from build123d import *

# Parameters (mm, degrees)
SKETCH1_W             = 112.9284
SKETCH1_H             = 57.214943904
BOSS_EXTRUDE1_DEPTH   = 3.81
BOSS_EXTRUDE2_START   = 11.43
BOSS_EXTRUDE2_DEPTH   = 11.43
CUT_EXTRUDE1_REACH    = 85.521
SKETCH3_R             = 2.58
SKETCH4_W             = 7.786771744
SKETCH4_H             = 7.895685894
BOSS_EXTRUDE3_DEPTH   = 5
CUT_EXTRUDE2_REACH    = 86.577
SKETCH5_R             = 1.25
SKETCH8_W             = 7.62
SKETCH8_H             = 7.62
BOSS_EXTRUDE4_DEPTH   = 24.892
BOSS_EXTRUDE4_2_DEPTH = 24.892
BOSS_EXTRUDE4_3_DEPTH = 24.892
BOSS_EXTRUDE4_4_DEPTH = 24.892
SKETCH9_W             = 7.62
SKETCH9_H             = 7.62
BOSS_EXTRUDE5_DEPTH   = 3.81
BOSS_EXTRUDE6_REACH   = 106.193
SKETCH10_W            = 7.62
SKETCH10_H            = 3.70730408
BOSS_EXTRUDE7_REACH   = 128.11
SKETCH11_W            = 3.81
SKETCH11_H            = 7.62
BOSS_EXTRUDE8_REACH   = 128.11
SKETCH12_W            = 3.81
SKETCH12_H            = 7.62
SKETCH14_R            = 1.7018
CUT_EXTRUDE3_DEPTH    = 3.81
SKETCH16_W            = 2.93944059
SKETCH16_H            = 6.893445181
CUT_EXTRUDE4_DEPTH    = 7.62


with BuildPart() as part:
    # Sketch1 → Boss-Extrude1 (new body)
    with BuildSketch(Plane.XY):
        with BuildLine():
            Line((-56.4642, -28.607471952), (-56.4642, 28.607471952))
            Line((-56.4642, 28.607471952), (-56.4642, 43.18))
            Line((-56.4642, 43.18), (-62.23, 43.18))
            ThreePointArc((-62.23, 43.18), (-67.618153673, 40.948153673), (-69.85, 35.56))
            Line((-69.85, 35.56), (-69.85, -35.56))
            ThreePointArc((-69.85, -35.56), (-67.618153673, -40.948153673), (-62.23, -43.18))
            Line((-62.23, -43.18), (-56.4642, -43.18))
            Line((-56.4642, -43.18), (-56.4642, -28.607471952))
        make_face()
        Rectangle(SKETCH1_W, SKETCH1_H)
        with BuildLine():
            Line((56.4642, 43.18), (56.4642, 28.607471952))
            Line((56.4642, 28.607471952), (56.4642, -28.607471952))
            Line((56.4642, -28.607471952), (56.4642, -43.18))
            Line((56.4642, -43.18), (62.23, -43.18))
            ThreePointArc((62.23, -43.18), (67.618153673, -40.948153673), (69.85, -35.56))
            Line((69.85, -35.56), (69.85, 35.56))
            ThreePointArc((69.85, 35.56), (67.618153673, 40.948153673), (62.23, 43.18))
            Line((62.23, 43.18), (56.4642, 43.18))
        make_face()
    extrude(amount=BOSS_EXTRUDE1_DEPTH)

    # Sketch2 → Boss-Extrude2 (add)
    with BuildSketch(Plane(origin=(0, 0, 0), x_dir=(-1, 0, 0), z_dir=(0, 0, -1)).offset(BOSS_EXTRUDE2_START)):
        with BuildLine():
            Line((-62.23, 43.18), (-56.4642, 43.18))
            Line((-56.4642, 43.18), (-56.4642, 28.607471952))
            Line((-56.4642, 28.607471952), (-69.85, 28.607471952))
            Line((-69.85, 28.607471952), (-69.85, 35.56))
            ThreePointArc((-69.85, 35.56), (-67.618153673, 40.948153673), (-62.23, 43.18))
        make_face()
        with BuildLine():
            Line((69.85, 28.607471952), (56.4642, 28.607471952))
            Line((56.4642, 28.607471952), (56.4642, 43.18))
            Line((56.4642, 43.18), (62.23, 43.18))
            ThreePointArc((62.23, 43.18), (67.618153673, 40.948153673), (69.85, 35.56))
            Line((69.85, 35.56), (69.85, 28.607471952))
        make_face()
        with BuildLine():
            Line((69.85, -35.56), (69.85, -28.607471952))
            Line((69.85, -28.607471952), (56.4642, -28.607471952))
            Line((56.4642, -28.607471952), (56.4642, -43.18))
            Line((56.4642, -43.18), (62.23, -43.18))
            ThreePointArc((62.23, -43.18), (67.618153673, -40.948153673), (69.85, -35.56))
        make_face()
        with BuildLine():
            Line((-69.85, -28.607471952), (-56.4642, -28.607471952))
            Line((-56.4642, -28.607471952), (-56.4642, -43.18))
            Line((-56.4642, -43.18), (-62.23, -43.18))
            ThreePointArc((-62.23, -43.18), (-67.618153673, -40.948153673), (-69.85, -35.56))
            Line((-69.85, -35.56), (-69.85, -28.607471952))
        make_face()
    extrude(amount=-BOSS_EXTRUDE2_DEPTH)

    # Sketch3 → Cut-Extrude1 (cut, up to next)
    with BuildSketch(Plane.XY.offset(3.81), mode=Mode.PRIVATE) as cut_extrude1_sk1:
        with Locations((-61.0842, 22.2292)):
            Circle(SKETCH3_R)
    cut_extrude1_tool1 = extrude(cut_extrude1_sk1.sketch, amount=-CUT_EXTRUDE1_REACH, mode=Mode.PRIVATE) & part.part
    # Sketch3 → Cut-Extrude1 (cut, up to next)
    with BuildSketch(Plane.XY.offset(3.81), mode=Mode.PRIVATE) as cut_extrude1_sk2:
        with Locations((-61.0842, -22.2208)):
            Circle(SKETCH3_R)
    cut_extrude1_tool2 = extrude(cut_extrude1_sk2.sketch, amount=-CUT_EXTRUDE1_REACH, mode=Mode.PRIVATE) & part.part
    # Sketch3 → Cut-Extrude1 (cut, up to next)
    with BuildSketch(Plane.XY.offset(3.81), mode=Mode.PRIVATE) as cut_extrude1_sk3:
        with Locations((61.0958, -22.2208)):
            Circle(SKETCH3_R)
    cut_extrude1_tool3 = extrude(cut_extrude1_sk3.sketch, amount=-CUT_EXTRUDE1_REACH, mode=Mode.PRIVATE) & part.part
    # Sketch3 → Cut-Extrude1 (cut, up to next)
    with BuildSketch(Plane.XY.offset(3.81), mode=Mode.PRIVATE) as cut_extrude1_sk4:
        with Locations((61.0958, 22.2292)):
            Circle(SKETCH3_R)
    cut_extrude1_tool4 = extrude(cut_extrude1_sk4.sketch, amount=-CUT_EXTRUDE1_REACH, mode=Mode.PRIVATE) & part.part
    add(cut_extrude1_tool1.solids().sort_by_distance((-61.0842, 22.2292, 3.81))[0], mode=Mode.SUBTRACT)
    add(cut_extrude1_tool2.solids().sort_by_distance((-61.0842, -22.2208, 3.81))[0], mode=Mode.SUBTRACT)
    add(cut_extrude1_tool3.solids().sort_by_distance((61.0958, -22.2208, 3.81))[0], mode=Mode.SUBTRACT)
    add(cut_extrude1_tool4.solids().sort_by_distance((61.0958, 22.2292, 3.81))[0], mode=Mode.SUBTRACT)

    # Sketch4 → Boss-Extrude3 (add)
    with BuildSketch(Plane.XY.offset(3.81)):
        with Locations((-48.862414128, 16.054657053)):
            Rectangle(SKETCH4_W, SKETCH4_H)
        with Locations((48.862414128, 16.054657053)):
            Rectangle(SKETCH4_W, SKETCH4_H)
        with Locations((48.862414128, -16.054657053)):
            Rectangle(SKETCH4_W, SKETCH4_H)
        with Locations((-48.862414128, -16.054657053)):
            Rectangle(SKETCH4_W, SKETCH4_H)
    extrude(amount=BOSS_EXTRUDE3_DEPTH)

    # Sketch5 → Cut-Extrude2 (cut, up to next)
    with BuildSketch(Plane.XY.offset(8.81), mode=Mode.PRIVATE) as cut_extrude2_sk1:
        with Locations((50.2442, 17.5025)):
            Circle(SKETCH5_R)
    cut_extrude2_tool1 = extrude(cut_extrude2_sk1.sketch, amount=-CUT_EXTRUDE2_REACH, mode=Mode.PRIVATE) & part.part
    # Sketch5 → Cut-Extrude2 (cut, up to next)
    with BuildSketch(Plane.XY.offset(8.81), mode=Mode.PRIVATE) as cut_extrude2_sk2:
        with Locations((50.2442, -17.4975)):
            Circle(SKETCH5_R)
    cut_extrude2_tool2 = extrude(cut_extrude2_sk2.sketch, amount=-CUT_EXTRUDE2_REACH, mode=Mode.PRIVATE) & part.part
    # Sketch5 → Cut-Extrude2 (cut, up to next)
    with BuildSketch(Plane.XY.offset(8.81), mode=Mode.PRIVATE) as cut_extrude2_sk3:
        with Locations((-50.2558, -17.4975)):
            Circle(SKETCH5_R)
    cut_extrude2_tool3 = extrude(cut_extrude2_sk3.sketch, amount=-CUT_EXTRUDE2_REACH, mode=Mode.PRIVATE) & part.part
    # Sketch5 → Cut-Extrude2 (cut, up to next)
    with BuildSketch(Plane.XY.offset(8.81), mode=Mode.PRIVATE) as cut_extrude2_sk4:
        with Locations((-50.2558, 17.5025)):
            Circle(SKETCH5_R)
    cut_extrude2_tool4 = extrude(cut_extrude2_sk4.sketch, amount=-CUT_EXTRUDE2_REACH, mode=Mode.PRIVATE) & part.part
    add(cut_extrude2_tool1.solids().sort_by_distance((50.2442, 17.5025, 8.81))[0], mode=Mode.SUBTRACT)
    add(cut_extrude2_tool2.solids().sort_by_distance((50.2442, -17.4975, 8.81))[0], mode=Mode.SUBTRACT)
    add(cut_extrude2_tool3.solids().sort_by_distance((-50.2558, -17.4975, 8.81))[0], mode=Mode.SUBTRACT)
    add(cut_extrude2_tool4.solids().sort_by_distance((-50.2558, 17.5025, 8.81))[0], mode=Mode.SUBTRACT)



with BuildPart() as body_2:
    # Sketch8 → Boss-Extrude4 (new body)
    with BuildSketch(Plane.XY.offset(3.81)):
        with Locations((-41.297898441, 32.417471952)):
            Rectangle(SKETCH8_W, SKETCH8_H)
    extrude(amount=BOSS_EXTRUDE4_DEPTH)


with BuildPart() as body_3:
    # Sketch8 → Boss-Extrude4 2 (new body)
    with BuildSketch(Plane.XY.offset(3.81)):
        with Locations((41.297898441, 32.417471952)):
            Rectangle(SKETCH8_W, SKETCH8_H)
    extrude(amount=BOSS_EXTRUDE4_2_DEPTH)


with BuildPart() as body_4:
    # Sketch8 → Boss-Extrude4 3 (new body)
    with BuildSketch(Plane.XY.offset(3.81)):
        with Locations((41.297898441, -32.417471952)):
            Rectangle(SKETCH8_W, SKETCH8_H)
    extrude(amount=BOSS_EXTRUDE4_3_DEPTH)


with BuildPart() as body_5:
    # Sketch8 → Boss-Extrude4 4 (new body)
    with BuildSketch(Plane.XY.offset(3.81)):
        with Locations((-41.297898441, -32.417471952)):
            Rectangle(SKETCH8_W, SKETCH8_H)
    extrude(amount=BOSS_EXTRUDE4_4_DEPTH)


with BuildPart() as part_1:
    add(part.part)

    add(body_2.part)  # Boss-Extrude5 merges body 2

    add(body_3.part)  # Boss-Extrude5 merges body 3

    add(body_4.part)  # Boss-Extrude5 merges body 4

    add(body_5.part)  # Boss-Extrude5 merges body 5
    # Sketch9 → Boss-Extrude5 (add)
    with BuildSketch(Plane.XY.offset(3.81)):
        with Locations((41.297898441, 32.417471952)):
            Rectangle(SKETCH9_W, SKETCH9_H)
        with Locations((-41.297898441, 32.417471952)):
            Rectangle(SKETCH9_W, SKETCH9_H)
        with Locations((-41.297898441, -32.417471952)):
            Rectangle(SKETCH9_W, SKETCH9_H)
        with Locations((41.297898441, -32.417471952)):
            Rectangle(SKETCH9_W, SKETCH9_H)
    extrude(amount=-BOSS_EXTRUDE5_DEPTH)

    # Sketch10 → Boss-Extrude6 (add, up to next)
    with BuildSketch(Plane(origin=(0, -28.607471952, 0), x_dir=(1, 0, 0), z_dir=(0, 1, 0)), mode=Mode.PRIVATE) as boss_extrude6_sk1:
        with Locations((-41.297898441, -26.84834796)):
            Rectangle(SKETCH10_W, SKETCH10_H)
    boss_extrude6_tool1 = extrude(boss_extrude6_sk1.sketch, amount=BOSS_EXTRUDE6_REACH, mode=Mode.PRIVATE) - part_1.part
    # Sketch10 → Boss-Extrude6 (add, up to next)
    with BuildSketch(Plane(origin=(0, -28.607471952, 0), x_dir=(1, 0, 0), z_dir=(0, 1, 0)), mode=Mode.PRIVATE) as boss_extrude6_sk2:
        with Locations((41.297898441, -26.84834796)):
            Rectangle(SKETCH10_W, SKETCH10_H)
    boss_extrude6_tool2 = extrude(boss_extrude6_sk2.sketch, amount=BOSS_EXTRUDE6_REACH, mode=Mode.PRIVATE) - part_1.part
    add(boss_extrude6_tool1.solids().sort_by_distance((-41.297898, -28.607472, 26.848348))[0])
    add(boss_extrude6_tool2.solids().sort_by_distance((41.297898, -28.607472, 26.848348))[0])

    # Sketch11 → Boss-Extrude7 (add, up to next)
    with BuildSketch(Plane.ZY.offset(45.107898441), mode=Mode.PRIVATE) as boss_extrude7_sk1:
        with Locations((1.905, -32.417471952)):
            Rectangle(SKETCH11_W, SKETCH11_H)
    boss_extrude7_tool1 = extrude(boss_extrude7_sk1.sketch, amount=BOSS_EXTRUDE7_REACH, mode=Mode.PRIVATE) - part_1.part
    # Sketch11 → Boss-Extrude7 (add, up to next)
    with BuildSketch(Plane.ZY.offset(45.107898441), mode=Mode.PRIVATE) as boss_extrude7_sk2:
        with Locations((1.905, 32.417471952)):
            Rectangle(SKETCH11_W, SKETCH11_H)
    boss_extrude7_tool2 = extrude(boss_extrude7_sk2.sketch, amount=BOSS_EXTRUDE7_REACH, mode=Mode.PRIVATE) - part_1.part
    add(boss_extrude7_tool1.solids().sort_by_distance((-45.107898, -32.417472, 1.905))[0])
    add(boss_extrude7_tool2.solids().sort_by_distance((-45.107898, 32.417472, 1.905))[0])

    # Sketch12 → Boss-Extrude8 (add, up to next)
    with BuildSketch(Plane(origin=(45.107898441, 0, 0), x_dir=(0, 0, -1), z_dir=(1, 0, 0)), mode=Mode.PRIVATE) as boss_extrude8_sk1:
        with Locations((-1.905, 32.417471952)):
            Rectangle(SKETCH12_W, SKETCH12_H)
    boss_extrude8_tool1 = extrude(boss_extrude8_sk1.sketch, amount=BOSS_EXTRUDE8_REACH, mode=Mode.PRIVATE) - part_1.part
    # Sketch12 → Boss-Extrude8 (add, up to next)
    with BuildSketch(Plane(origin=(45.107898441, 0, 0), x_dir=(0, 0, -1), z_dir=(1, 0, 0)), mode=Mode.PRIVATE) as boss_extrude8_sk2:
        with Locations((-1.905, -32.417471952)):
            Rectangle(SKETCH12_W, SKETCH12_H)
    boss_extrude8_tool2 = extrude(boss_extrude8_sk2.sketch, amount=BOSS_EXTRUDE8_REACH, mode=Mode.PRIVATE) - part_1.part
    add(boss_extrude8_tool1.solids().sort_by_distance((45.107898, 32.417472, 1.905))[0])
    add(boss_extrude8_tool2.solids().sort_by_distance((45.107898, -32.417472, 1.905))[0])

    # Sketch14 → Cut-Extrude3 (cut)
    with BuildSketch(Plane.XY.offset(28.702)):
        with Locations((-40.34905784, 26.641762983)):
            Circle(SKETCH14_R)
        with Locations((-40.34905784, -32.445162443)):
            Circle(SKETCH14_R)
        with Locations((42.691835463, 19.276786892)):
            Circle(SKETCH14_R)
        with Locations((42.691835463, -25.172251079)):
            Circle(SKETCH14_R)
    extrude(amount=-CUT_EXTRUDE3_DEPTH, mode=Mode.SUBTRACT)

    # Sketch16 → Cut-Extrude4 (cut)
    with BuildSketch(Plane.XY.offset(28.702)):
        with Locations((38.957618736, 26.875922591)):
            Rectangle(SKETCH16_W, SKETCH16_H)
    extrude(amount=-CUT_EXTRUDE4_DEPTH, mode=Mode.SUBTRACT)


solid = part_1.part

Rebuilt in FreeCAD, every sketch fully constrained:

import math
import FreeCAD as App
import Part
import Sketcher
Q = App.Units.Quantity


def add_polygon(sketch, points):
    """Adds a closed chain of lines whose ends are joined by coincident constraints."""
    first, n = sketch.GeometryCount, len(points)
    for a, b in zip(points, points[1:] + points[:1]):
        sketch.addGeometry(Part.LineSegment(App.Vector(*a, 0), App.Vector(*b, 0)), False)
    for i in range(n):
        sketch.addConstraint(Sketcher.Constraint("Coincident", first + i, 2, first + (i + 1) % n, 1))

doc = App.newDocument("Part")
params = doc.addObject("Spreadsheet::Sheet", "Params")
for row, (alias, value) in enumerate([
    ("sketch1_radius", "0.3 in"),
    ("sketch1_height", "2.8 in"),
    ("sketch1_width", "0.227 in"),
    ("pad1_length", "0.15 in"),
    ("sketch2_radius", "0.3 in"),
    ("sketch2_width", "0.227 in"),
    ("pad2_length", "0.45 in"),
    ("pad3_length", "5 mm"),
    ("sketch12_width", "0.3 in"),
    ("pad4_length", "0.98 in"),
    ("sketch13_width", "0.3 in"),
    ("pad5_length", "0.98 in"),
    ("sketch14_width", "0.3 in"),
    ("pad6_length", "0.98 in"),
    ("sketch15_width", "0.3 in"),
    ("pad7_length", "0.98 in"),
    ("sketch16_width", "0.3 in"),
    ("pad8_length", "0.15 in"),
    ("sketch17_width", "0.3 in"),
    ("sketch18_width", "0.3 in"),
    ("sketch19_width", "0.3 in"),
    ("sketch19_height", "0.15 in"),
    ("sketch20_width", "0.3 in"),
    ("sketch20_height", "0.15 in"),
    ("sketch21_width", "0.3 in"),
    ("sketch21_height", "0.15 in"),
    ("sketch22_width", "0.3 in"),
    ("sketch22_height", "0.15 in"),
    ("sketch23_diameter", "0.134 in"),
    ("pocket9_length", "0.15 in"),
    ("pocket10_length", "0.3 in"),
], start=1):
    params.set(f"A{row}", alias)
    params.set(f"B{row}", "=" + value)
    params.setAlias(f"B{row}", alias)

body = doc.addObject("PartDesign::Body", "Body")

sketch1 = body.newObject("Sketcher::SketchObject", "Sketch")
sketch1.AttachmentSupport = (doc.getObject("XY_Plane"), [""])
sketch1.MapMode = "FlatFace"
sketch1.addGeometry([
    Part.LineSegment(App.Vector(-56, 43, 0), App.Vector(-62, 43, 0)),
    Part.ArcOfCircle(Part.Circle(App.Vector(-62, 36, 0), App.Vector(0, 0, 1), 8), math.radians(90), math.radians(180)),
    Part.LineSegment(App.Vector(-70, 36, 0), App.Vector(-70, -36, 0)),
    Part.ArcOfCircle(Part.Circle(App.Vector(-62, -36, 0), App.Vector(0, 0, 1), 8), math.radians(180), math.radians(270)),
    Part.LineSegment(App.Vector(-62, -43, 0), App.Vector(-56, -43, 0)),
    Part.LineSegment(App.Vector(-56, -43, 0), App.Vector(-56, -29, 0)),
    Part.LineSegment(App.Vector(-56, -29, 0), App.Vector(56, -29, 0)),
    Part.LineSegment(App.Vector(56, -29, 0), App.Vector(56, -43, 0)),
    Part.LineSegment(App.Vector(56, -43, 0), App.Vector(62, -43, 0)),
    Part.ArcOfCircle(Part.Circle(App.Vector(62, -36, 0), App.Vector(0, 0, 1), 8), math.radians(-90), math.radians(0)),
    Part.LineSegment(App.Vector(70, -36, 0), App.Vector(70, 36, 0)),
    Part.ArcOfCircle(Part.Circle(App.Vector(62, 36, 0), App.Vector(0, 0, 1), 8), math.radians(0), math.radians(90)),
    Part.LineSegment(App.Vector(62, 43, 0), App.Vector(56, 43, 0)),
    Part.LineSegment(App.Vector(56, 43, 0), App.Vector(56, 29, 0)),
    Part.LineSegment(App.Vector(56, 29, 0), App.Vector(-56, 29, 0)),
    Part.LineSegment(App.Vector(-56, 29, 0), App.Vector(-56, 43, 0)),
], False)
sketch1.addConstraint([
    Sketcher.Constraint("Tangent", 0, 2, 1, 1),
    Sketcher.Constraint("Tangent", 1, 2, 2, 1),
    Sketcher.Constraint("Tangent", 2, 2, 3, 1),
    Sketcher.Constraint("Tangent", 3, 2, 4, 1),
    Sketcher.Constraint("Coincident", 4, 2, 5, 1),
    Sketcher.Constraint("Coincident", 5, 2, 6, 1),
    Sketcher.Constraint("Coincident", 6, 2, 7, 1),
    Sketcher.Constraint("Coincident", 7, 2, 8, 1),
    Sketcher.Constraint("Tangent", 8, 2, 9, 1),
    Sketcher.Constraint("Tangent", 9, 2, 10, 1),
    Sketcher.Constraint("Tangent", 10, 2, 11, 1),
    Sketcher.Constraint("Tangent", 11, 2, 12, 1),
    Sketcher.Constraint("Coincident", 12, 2, 13, 1),
    Sketcher.Constraint("Coincident", 13, 2, 14, 1),
    Sketcher.Constraint("Coincident", 14, 2, 15, 1),
    Sketcher.Constraint("Coincident", 15, 2, 0, 1),
    Sketcher.Constraint("Horizontal", 0),
    Sketcher.Constraint("Vertical", 2),
    Sketcher.Constraint("Horizontal", 4),
    Sketcher.Constraint("Vertical", 5),
    Sketcher.Constraint("Horizontal", 6),
    Sketcher.Constraint("Vertical", 7),
    Sketcher.Constraint("Horizontal", 8),
    Sketcher.Constraint("Vertical", 10),
    Sketcher.Constraint("Horizontal", 12),
    Sketcher.Constraint("Vertical", 13),
    Sketcher.Constraint("Horizontal", 14),
    Sketcher.Constraint("Vertical", 15),
    Sketcher.Constraint("Equal", 1, 3),
    Sketcher.Constraint("Equal", 3, 9),
    Sketcher.Constraint("Equal", 9, 11),
    Sketcher.Constraint("Symmetric", 1, 3, 9, 3, -1, 1),
    Sketcher.Constraint("Symmetric", 4, 2, 12, 2, -1, 1),
    Sketcher.Constraint("Symmetric", 6, 2, 14, 2, -1, 1),
    Sketcher.Constraint("Symmetric", 4, 2, 7, 2, -2),
    Sketcher.Constraint("Radius", 1, Q("0.3 in")),
    Sketcher.Constraint("DistanceY", 2, 2, 2, 1, Q("2.8 in")),
    Sketcher.Constraint("DistanceX", 3, 3, 9, 3, Q("4.9 in")),
    Sketcher.Constraint("DistanceX", 0, 2, 0, 1, Q("0.227 in")),
    Sketcher.Constraint("DistanceY", 5, 1, 5, 2, Q("14.572528 mm")),
])
sketch1.setExpression("Constraints[35]", "Params.sketch1_radius")
sketch1.setExpression("Constraints[36]", "Params.sketch1_height")
sketch1.setExpression("Constraints[38]", "Params.sketch1_width")
pad1 = body.newObject("PartDesign::Pad", "Pad")
pad1.Profile = sketch1
pad1.setExpression("Length", "Params.pad1_length")

sketch2 = body.newObject("Sketcher::SketchObject", "Sketch001")
sketch2.AttachmentSupport = (doc.getObject("XY_Plane"), [""])
sketch2.MapMode = "FlatFace"
sketch2.AttachmentOffset = App.Placement(App.Vector(0, 0, -0.45 * 25.4), App.Rotation())
sketch2.addGeometry([
    Part.LineSegment(App.Vector(56, 43, 0), App.Vector(62, 43, 0)),
    Part.ArcOfCircle(Part.Circle(App.Vector(62, 36, 0), App.Vector(0, 0, 1), 8), math.radians(0), math.radians(90)),
    Part.LineSegment(App.Vector(70, 36, 0), App.Vector(70, 29, 0)),
    Part.LineSegment(App.Vector(70, 29, 0), App.Vector(56, 29, 0)),
    Part.LineSegment(App.Vector(56, 29, 0), App.Vector(56, 43, 0)),
    Part.LineSegment(App.Vector(-56, 29, 0), App.Vector(-70, 29, 0)),
    Part.LineSegment(App.Vector(-70, 29, 0), App.Vector(-70, 36, 0)),
    Part.ArcOfCircle(Part.Circle(App.Vector(-62, 36, 0), App.Vector(0, 0, 1), 8), math.radians(90), math.radians(180)),
    Part.LineSegment(App.Vector(-62, 43, 0), App.Vector(-56, 43, 0)),
    Part.LineSegment(App.Vector(-56, 43, 0), App.Vector(-56, 29, 0)),
    Part.LineSegment(App.Vector(-70, -36, 0), App.Vector(-70, -29, 0)),
    Part.LineSegment(App.Vector(-70, -29, 0), App.Vector(-56, -29, 0)),
    Part.LineSegment(App.Vector(-56, -29, 0), App.Vector(-56, -43, 0)),
    Part.LineSegment(App.Vector(-56, -43, 0), App.Vector(-62, -43, 0)),
    Part.ArcOfCircle(Part.Circle(App.Vector(-62, -36, 0), App.Vector(0, 0, 1), 8), math.radians(180), math.radians(270)),
    Part.LineSegment(App.Vector(56, -29, 0), App.Vector(70, -29, 0)),
    Part.LineSegment(App.Vector(70, -29, 0), App.Vector(70, -36, 0)),
    Part.ArcOfCircle(Part.Circle(App.Vector(62, -36, 0), App.Vector(0, 0, 1), 8), math.radians(-90), math.radians(0)),
    Part.LineSegment(App.Vector(62, -43, 0), App.Vector(56, -43, 0)),
    Part.LineSegment(App.Vector(56, -43, 0), App.Vector(56, -29, 0)),
], False)
sketch2.addConstraint([
    Sketcher.Constraint("Tangent", 0, 2, 1, 2),
    Sketcher.Constraint("Tangent", 1, 1, 2, 1),
    Sketcher.Constraint("Coincident", 2, 2, 3, 1),
    Sketcher.Constraint("Coincident", 3, 2, 4, 1),
    Sketcher.Constraint("Coincident", 4, 2, 0, 1),
    Sketcher.Constraint("Coincident", 5, 2, 6, 1),
    Sketcher.Constraint("Tangent", 6, 2, 7, 2),
    Sketcher.Constraint("Tangent", 7, 1, 8, 1),
    Sketcher.Constraint("Coincident", 8, 2, 9, 1),
    Sketcher.Constraint("Coincident", 9, 2, 5, 1),
    Sketcher.Constraint("Coincident", 10, 2, 11, 1),
    Sketcher.Constraint("Coincident", 11, 2, 12, 1),
    Sketcher.Constraint("Coincident", 12, 2, 13, 1),
    Sketcher.Constraint("Tangent", 13, 2, 14, 2),
    Sketcher.Constraint("Tangent", 14, 1, 10, 1),
    Sketcher.Constraint("Coincident", 15, 2, 16, 1),
    Sketcher.Constraint("Tangent", 16, 2, 17, 2),
    Sketcher.Constraint("Tangent", 17, 1, 18, 1),
    Sketcher.Constraint("Coincident", 18, 2, 19, 1),
    Sketcher.Constraint("Coincident", 19, 2, 15, 1),
    Sketcher.Constraint("Horizontal", 0),
    Sketcher.Constraint("Vertical", 2),
    Sketcher.Constraint("Horizontal", 3),
    Sketcher.Constraint("Vertical", 4),
    Sketcher.Constraint("Horizontal", 5),
    Sketcher.Constraint("Vertical", 6),
    Sketcher.Constraint("Horizontal", 8),
    Sketcher.Constraint("Vertical", 9),
    Sketcher.Constraint("Vertical", 10),
    Sketcher.Constraint("Horizontal", 11),
    Sketcher.Constraint("Vertical", 12),
    Sketcher.Constraint("Horizontal", 13),
    Sketcher.Constraint("Horizontal", 15),
    Sketcher.Constraint("Vertical", 16),
    Sketcher.Constraint("Horizontal", 18),
    Sketcher.Constraint("Vertical", 19),
    Sketcher.Constraint("Equal", 1, 7),
    Sketcher.Constraint("Equal", 7, 14),
    Sketcher.Constraint("Equal", 14, 17),
    Sketcher.Constraint("Symmetric", 1, 3, 14, 3, -1, 1),
    Sketcher.Constraint("Symmetric", 7, 3, 17, 3, -1, 1),
    Sketcher.Constraint("Symmetric", 3, 2, 11, 2, -1, 1),
    Sketcher.Constraint("Symmetric", 9, 2, 19, 2, -1, 1),
    Sketcher.Constraint("Symmetric", 1, 3, 7, 3, -2),
    Sketcher.Constraint("Symmetric", 3, 2, 9, 2, -2),
    Sketcher.Constraint("Radius", 1, Q("0.3 in")),
    Sketcher.Constraint("DistanceY", -1, 1, 1, 3, Q("1.4 in")),
    Sketcher.Constraint("DistanceX", 7, 3, 1, 3, Q("4.9 in")),
    Sketcher.Constraint("DistanceX", 0, 1, 0, 2, Q("0.227 in")),
    Sketcher.Constraint("DistanceY", 2, 2, 2, 1, Q("6.952528 mm")),
])
sketch2.setExpression("Constraints[45]", "Params.sketch2_radius")
sketch2.setExpression("Constraints[48]", "Params.sketch2_width")
pad2 = body.newObject("PartDesign::Pad", "Pad001")
pad2.Profile = sketch2
pad2.setExpression("Length", "Params.pad2_length")

sketch3 = body.newObject("Sketcher::SketchObject", "Sketch002")
sketch3.AttachmentSupport = (doc.getObject("XY_Plane"), [""])
sketch3.MapMode = "FlatFace"
sketch3.AttachmentOffset = App.Placement(App.Vector(0, 0, 0.15 * 25.4), App.Rotation())
sketch3.addGeometry(Part.Circle(App.Vector(-61.1, 22.2, 0), App.Vector(0, 0, 1), 2.6), False)
sketch3.addConstraint([
    Sketcher.Constraint("Diameter", 0, Q("5.16 mm")),
    Sketcher.Constraint("DistanceX", 0, 3, -1, 1, Q("61.0842 mm")),
    Sketcher.Constraint("DistanceY", -1, 1, 0, 3, Q("22.2292 mm")),
])
pocket1 = body.newObject("PartDesign::Pocket", "Pocket")
pocket1.Profile = sketch3
pocket1.Type = "UpToFirst"

sketch4 = body.newObject("Sketcher::SketchObject", "Sketch003")
sketch4.AttachmentSupport = (doc.getObject("XY_Plane"), [""])
sketch4.MapMode = "FlatFace"
sketch4.AttachmentOffset = App.Placement(App.Vector(0, 0, 0.15 * 25.4), App.Rotation())
sketch4.addGeometry(Part.Circle(App.Vector(-61.1, -22.2, 0), App.Vector(0, 0, 1), 2.6), False)
sketch4.addConstraint([
    Sketcher.Constraint("Diameter", 0, Q("5.16 mm")),
    Sketcher.Constraint("DistanceX", 0, 3, -1, 1, Q("61.0842 mm")),
    Sketcher.Constraint("DistanceY", 0, 3, -1, 1, Q("22.2208 mm")),
])
pocket2 = body.newObject("PartDesign::Pocket", "Pocket001")
pocket2.Profile = sketch4
pocket2.Type = "UpToFirst"

sketch5 = body.newObject("Sketcher::SketchObject", "Sketch004")
sketch5.AttachmentSupport = (doc.getObject("XY_Plane"), [""])
sketch5.MapMode = "FlatFace"
sketch5.AttachmentOffset = App.Placement(App.Vector(0, 0, 0.15 * 25.4), App.Rotation())
sketch5.addGeometry(Part.Circle(App.Vector(61.1, -22.2, 0), App.Vector(0, 0, 1), 2.6), False)
sketch5.addConstraint([
    Sketcher.Constraint("Diameter", 0, Q("5.16 mm")),
    Sketcher.Constraint("DistanceX", -1, 1, 0, 3, Q("61.0958 mm")),
    Sketcher.Constraint("DistanceY", 0, 3, -1, 1, Q("22.2208 mm")),
])
pocket3 = body.newObject("PartDesign::Pocket", "Pocket002")
pocket3.Profile = sketch5
pocket3.Type = "UpToFirst"

sketch6 = body.newObject("Sketcher::SketchObject", "Sketch005")
sketch6.AttachmentSupport = (doc.getObject("XY_Plane"), [""])
sketch6.MapMode = "FlatFace"
sketch6.AttachmentOffset = App.Placement(App.Vector(0, 0, 0.15 * 25.4), App.Rotation())
sketch6.addGeometry(Part.Circle(App.Vector(61.1, 22.2, 0), App.Vector(0, 0, 1), 2.6), False)
sketch6.addConstraint([
    Sketcher.Constraint("Diameter", 0, Q("5.16 mm")),
    Sketcher.Constraint("DistanceX", -1, 1, 0, 3, Q("61.0958 mm")),
    Sketcher.Constraint("DistanceY", -1, 1, 0, 3, Q("22.2292 mm")),
])
pocket4 = body.newObject("PartDesign::Pocket", "Pocket003")
pocket4.Profile = sketch6
pocket4.Type = "UpToFirst"

sketch7 = body.newObject("Sketcher::SketchObject", "Sketch006")
sketch7.AttachmentSupport = (doc.getObject("XY_Plane"), [""])
sketch7.MapMode = "FlatFace"
sketch7.AttachmentOffset = App.Placement(App.Vector(0, 0, 0.15 * 25.4), App.Rotation())
add_polygon(sketch7, [(-53, 20), (-53, 12), (-45, 12), (-45, 20)])
add_polygon(sketch7, [(45, 20), (45, 12), (53, 12), (53, 20)])
add_polygon(sketch7, [(45, -12), (45, -20), (53, -20), (53, -12)])
add_polygon(sketch7, [(-53, -12), (-53, -20), (-45, -20), (-45, -12)])
sketch7.addConstraint([
    Sketcher.Constraint("Vertical", 0),
    Sketcher.Constraint("Horizontal", 1),
    Sketcher.Constraint("Vertical", 2),
    Sketcher.Constraint("Horizontal", 3),
    Sketcher.Constraint("Vertical", 4),
    Sketcher.Constraint("Horizontal", 5),
    Sketcher.Constraint("Vertical", 6),
    Sketcher.Constraint("Horizontal", 7),
    Sketcher.Constraint("Vertical", 8),
    Sketcher.Constraint("Horizontal", 9),
    Sketcher.Constraint("Vertical", 10),
    Sketcher.Constraint("Horizontal", 11),
    Sketcher.Constraint("Vertical", 12),
    Sketcher.Constraint("Horizontal", 13),
    Sketcher.Constraint("Vertical", 14),
    Sketcher.Constraint("Horizontal", 15),
    Sketcher.Constraint("Symmetric", 2, 2, 8, 2, -1, 1),
    Sketcher.Constraint("Symmetric", 0, 2, 10, 2, -1, 1),
    Sketcher.Constraint("Symmetric", 6, 2, 12, 2, -1, 1),
    Sketcher.Constraint("Symmetric", 4, 2, 14, 2, -1, 1),
    Sketcher.Constraint("Symmetric", 1, 2, 4, 2, -2),
    Sketcher.Constraint("Symmetric", 3, 2, 6, 2, -2),
    Sketcher.Constraint("DistanceX", 0, 2, -1, 1, Q("2.077 in")),
    Sketcher.Constraint("DistanceY", 8, 2, 7, 2, Q("1.575 in")),
    Sketcher.Constraint("DistanceX", 1, 1, 1, 2, Q("7.786772 mm")),
    Sketcher.Constraint("DistanceY", 0, 2, 0, 1, Q("7.895686 mm")),
])
pad3 = body.newObject("PartDesign::Pad", "Pad002")
pad3.Profile = sketch7
pad3.setExpression("Length", "Params.pad3_length")

sketch8 = body.newObject("Sketcher::SketchObject", "Sketch007")
sketch8.AttachmentSupport = (doc.getObject("XY_Plane"), [""])
sketch8.MapMode = "FlatFace"
sketch8.AttachmentOffset = App.Placement(App.Vector(0, 0, 8.81), App.Rotation())
sketch8.addGeometry(Part.Circle(App.Vector(50.2, 17.5, 0), App.Vector(0, 0, 1), 1.2), False)
sketch8.addConstraint([
    Sketcher.Constraint("Diameter", 0, Q("2.5 mm")),
    Sketcher.Constraint("DistanceX", -1, 1, 0, 3, Q("50.2442 mm")),
    Sketcher.Constraint("DistanceY", -1, 1, 0, 3, Q("17.5025 mm")),
])
pocket5 = body.newObject("PartDesign::Pocket", "Pocket004")
pocket5.Profile = sketch8
pocket5.Type = "UpToFirst"

sketch9 = body.newObject("Sketcher::SketchObject", "Sketch008")
sketch9.AttachmentSupport = (doc.getObject("XY_Plane"), [""])
sketch9.MapMode = "FlatFace"
sketch9.AttachmentOffset = App.Placement(App.Vector(0, 0, 8.81), App.Rotation())
sketch9.addGeometry(Part.Circle(App.Vector(50.2, -17.5, 0), App.Vector(0, 0, 1), 1.2), False)
sketch9.addConstraint([
    Sketcher.Constraint("Diameter", 0, Q("2.5 mm")),
    Sketcher.Constraint("DistanceX", -1, 1, 0, 3, Q("50.2442 mm")),
    Sketcher.Constraint("DistanceY", 0, 3, -1, 1, Q("17.4975 mm")),
])
pocket6 = body.newObject("PartDesign::Pocket", "Pocket005")
pocket6.Profile = sketch9
pocket6.Type = "UpToFirst"

sketch10 = body.newObject("Sketcher::SketchObject", "Sketch009")
sketch10.AttachmentSupport = (doc.getObject("XY_Plane"), [""])
sketch10.MapMode = "FlatFace"
sketch10.AttachmentOffset = App.Placement(App.Vector(0, 0, 8.81), App.Rotation())
sketch10.addGeometry(Part.Circle(App.Vector(-50.3, -17.5, 0), App.Vector(0, 0, 1), 1.2), False)
sketch10.addConstraint([
    Sketcher.Constraint("Diameter", 0, Q("2.5 mm")),
    Sketcher.Constraint("DistanceX", 0, 3, -1, 1, Q("50.2558 mm")),
    Sketcher.Constraint("DistanceY", 0, 3, -1, 1, Q("17.4975 mm")),
])
pocket7 = body.newObject("PartDesign::Pocket", "Pocket006")
pocket7.Profile = sketch10
pocket7.Type = "UpToFirst"

sketch11 = body.newObject("Sketcher::SketchObject", "Sketch010")
sketch11.AttachmentSupport = (doc.getObject("XY_Plane"), [""])
sketch11.MapMode = "FlatFace"
sketch11.AttachmentOffset = App.Placement(App.Vector(0, 0, 8.81), App.Rotation())
sketch11.addGeometry(Part.Circle(App.Vector(-50.3, 17.5, 0), App.Vector(0, 0, 1), 1.2), False)
sketch11.addConstraint([
    Sketcher.Constraint("Diameter", 0, Q("2.5 mm")),
    Sketcher.Constraint("DistanceX", 0, 3, -1, 1, Q("50.2558 mm")),
    Sketcher.Constraint("DistanceY", -1, 1, 0, 3, Q("17.5025 mm")),
])
pocket8 = body.newObject("PartDesign::Pocket", "Pocket007")
pocket8.Profile = sketch11
pocket8.Type = "UpToFirst"
body2 = doc.addObject("PartDesign::Body", "Body001")

sketch12 = body2.newObject("Sketcher::SketchObject", "Sketch011")
sketch12.AttachmentSupport = (doc.getObject("XY_Plane001"), [""])
sketch12.MapMode = "FlatFace"
sketch12.AttachmentOffset = App.Placement(App.Vector(0, 0, 0.15 * 25.4), App.Rotation())
add_polygon(sketch12, [(-45, 36), (-45, 29), (-37, 29), (-37, 36)])
sketch12.addConstraint([
    Sketcher.Constraint("Vertical", 0),
    Sketcher.Constraint("Horizontal", 1),
    Sketcher.Constraint("Vertical", 2),
    Sketcher.Constraint("Horizontal", 3),
    Sketcher.Constraint("Equal", 3, 0),
    Sketcher.Constraint("DistanceX", 1, 1, 1, 2, Q("0.3 in")),
    Sketcher.Constraint("DistanceX", 0, 2, -1, 1, Q("45.107898 mm")),
    Sketcher.Constraint("DistanceY", -1, 1, 0, 2, Q("28.607472 mm")),
])
sketch12.setExpression("Constraints[9]", "Params.sketch12_width")
pad4 = body2.newObject("PartDesign::Pad", "Pad003")
pad4.Profile = sketch12
pad4.setExpression("Length", "Params.pad4_length")
body3 = doc.addObject("PartDesign::Body", "Body002")

sketch13 = body3.newObject("Sketcher::SketchObject", "Sketch012")
sketch13.AttachmentSupport = (doc.getObject("XY_Plane002"), [""])
sketch13.MapMode = "FlatFace"
sketch13.AttachmentOffset = App.Placement(App.Vector(0, 0, 0.15 * 25.4), App.Rotation())
add_polygon(sketch13, [(37, 36), (37, 29), (45, 29), (45, 36)])
sketch13.addConstraint([
    Sketcher.Constraint("Vertical", 0),
    Sketcher.Constraint("Horizontal", 1),
    Sketcher.Constraint("Vertical", 2),
    Sketcher.Constraint("Horizontal", 3),
    Sketcher.Constraint("Equal", 3, 0),
    Sketcher.Constraint("DistanceX", 1, 1, 1, 2, Q("0.3 in")),
    Sketcher.Constraint("DistanceX", -1, 1, 0, 2, Q("37.487898 mm")),
    Sketcher.Constraint("DistanceY", -1, 1, 0, 2, Q("28.607472 mm")),
])
sketch13.setExpression("Constraints[9]", "Params.sketch13_width")
pad5 = body3.newObject("PartDesign::Pad", "Pad004")
pad5.Profile = sketch13
pad5.setExpression("Length", "Params.pad5_length")
body4 = doc.addObject("PartDesign::Body", "Body003")

sketch14 = body4.newObject("Sketcher::SketchObject", "Sketch013")
sketch14.AttachmentSupport = (doc.getObject("XY_Plane003"), [""])
sketch14.MapMode = "FlatFace"
sketch14.AttachmentOffset = App.Placement(App.Vector(0, 0, 0.15 * 25.4), App.Rotation())
add_polygon(sketch14, [(37, -29), (37, -36), (45, -36), (45, -29)])
sketch14.addConstraint([
    Sketcher.Constraint("Vertical", 0),
    Sketcher.Constraint("Horizontal", 1),
    Sketcher.Constraint("Vertical", 2),
    Sketcher.Constraint("Horizontal", 3),
    Sketcher.Constraint("Equal", 3, 0),
    Sketcher.Constraint("DistanceX", 1, 1, 1, 2, Q("0.3 in")),
    Sketcher.Constraint("DistanceX", -1, 1, 0, 2, Q("37.487898 mm")),
    Sketcher.Constraint("DistanceY", 0, 2, -1, 1, Q("36.227472 mm")),
])
sketch14.setExpression("Constraints[9]", "Params.sketch14_width")
pad6 = body4.newObject("PartDesign::Pad", "Pad005")
pad6.Profile = sketch14
pad6.setExpression("Length", "Params.pad6_length")
body5 = doc.addObject("PartDesign::Body", "Body004")

sketch15 = body5.newObject("Sketcher::SketchObject", "Sketch014")
sketch15.AttachmentSupport = (doc.getObject("XY_Plane004"), [""])
sketch15.MapMode = "FlatFace"
sketch15.AttachmentOffset = App.Placement(App.Vector(0, 0, 0.15 * 25.4), App.Rotation())
add_polygon(sketch15, [(-45, -29), (-45, -36), (-37, -36), (-37, -29)])
sketch15.addConstraint([
    Sketcher.Constraint("Vertical", 0),
    Sketcher.Constraint("Horizontal", 1),
    Sketcher.Constraint("Vertical", 2),
    Sketcher.Constraint("Horizontal", 3),
    Sketcher.Constraint("Equal", 3, 0),
    Sketcher.Constraint("DistanceX", 1, 1, 1, 2, Q("0.3 in")),
    Sketcher.Constraint("DistanceX", 0, 2, -1, 1, Q("45.107898 mm")),
    Sketcher.Constraint("DistanceY", 0, 2, -1, 1, Q("36.227472 mm")),
])
sketch15.setExpression("Constraints[9]", "Params.sketch15_width")
pad7 = body5.newObject("PartDesign::Pad", "Pad006")
pad7.Profile = sketch15
pad7.setExpression("Length", "Params.pad7_length")
body.AllowCompound = True
doc.recompute()

boolean = body.newObject("PartDesign::Boolean", "Boolean")
boolean.Type = "Fuse"
boolean.addObjects([body2])
doc.recompute()

boolean2 = body.newObject("PartDesign::Boolean", "Boolean001")
boolean2.Type = "Fuse"
boolean2.addObjects([body3])
doc.recompute()

boolean3 = body.newObject("PartDesign::Boolean", "Boolean002")
boolean3.Type = "Fuse"
boolean3.addObjects([body4])
doc.recompute()

boolean4 = body.newObject("PartDesign::Boolean", "Boolean003")
boolean4.Type = "Fuse"
boolean4.addObjects([body5])

sketch16 = body.newObject("Sketcher::SketchObject", "Sketch015")
sketch16.AttachmentSupport = (doc.getObject("XY_Plane"), [""])
sketch16.MapMode = "FlatFace"
sketch16.AttachmentOffset = App.Placement(App.Vector(0, 0, 0.15 * 25.4), App.Rotation())
add_polygon(sketch16, [(37, 36), (37, 29), (45, 29), (45, 36)])
add_polygon(sketch16, [(-45, 36), (-45, 29), (-37, 29), (-37, 36)])
add_polygon(sketch16, [(-45, -29), (-45, -36), (-37, -36), (-37, -29)])
add_polygon(sketch16, [(37, -29), (37, -36), (45, -36), (45, -29)])
sketch16.addConstraint([
    Sketcher.Constraint("Vertical", 0),
    Sketcher.Constraint("Horizontal", 1),
    Sketcher.Constraint("Vertical", 2),
    Sketcher.Constraint("Horizontal", 3),
    Sketcher.Constraint("Vertical", 4),
    Sketcher.Constraint("Horizontal", 5),
    Sketcher.Constraint("Vertical", 6),
    Sketcher.Constraint("Horizontal", 7),
    Sketcher.Constraint("Vertical", 8),
    Sketcher.Constraint("Horizontal", 9),
    Sketcher.Constraint("Vertical", 10),
    Sketcher.Constraint("Horizontal", 11),
    Sketcher.Constraint("Vertical", 12),
    Sketcher.Constraint("Horizontal", 13),
    Sketcher.Constraint("Vertical", 14),
    Sketcher.Constraint("Horizontal", 15),
    Sketcher.Constraint("Symmetric", 2, 2, 8, 2, -1, 1),
    Sketcher.Constraint("Symmetric", 0, 2, 10, 2, -1, 1),
    Sketcher.Constraint("Symmetric", 6, 2, 12, 2, -1, 1),
    Sketcher.Constraint("Symmetric", 4, 2, 14, 2, -1, 1),
    Sketcher.Constraint("Symmetric", 1, 2, 4, 2, -2),
    Sketcher.Constraint("Symmetric", 3, 2, 6, 2, -2),
    Sketcher.Constraint("Equal", 15, 0),
    Sketcher.Constraint("DistanceX", 1, 1, 1, 2, Q("0.3 in")),
    Sketcher.Constraint("DistanceX", -1, 1, 0, 2, Q("37.487898 mm")),
    Sketcher.Constraint("DistanceY", -1, 1, 0, 2, Q("28.607472 mm")),
])
sketch16.setExpression("Constraints[39]", "Params.sketch16_width")
pad8 = body.newObject("PartDesign::Pad", "Pad007")
pad8.Profile = sketch16
pad8.setExpression("Length", "Params.pad8_length")
pad8.Reversed = True

sketch17 = body.newObject("Sketcher::SketchObject", "Sketch016")
sketch17.AttachmentSupport = (doc.getObject("XZ_Plane"), [""])
sketch17.MapMode = "FlatFace"
sketch17.AttachmentOffset = App.Placement(App.Vector(0, 0, 28.607472), App.Rotation())
add_polygon(sketch17, [(-45.1, 25), (-45.1, 28.7), (-37.5, 28.7), (-37.5, 25)])
sketch17.addConstraint([
    Sketcher.Constraint("Vertical", 0),
    Sketcher.Constraint("Horizontal", 1),
    Sketcher.Constraint("Vertical", 2),
    Sketcher.Constraint("Horizontal", 3),
    Sketcher.Constraint("DistanceX", 1, 1, 1, 2, Q("0.3 in")),
    Sketcher.Constraint("DistanceY", -1, 1, 0, 2, Q("1.13 in")),
    Sketcher.Constraint("DistanceX", 0, 2, -1, 1, Q("45.107898 mm")),
    Sketcher.Constraint("DistanceY", 0, 1, 0, 2, Q("3.707304 mm")),
])
sketch17.setExpression("Constraints[8]", "Params.sketch17_width")
pad9 = body.newObject("PartDesign::Pad", "Pad008")
pad9.Profile = sketch17
pad9.Type = "UpToFirst"
pad9.Reversed = True

sketch18 = body.newObject("Sketcher::SketchObject", "Sketch017")
sketch18.AttachmentSupport = (doc.getObject("XZ_Plane"), [""])
sketch18.MapMode = "FlatFace"
sketch18.AttachmentOffset = App.Placement(App.Vector(0, 0, 28.607472), App.Rotation())
add_polygon(sketch18, [(37.5, 25), (37.5, 28.7), (45.1, 28.7), (45.1, 25)])
sketch18.addConstraint([
    Sketcher.Constraint("Vertical", 0),
    Sketcher.Constraint("Horizontal", 1),
    Sketcher.Constraint("Vertical", 2),
    Sketcher.Constraint("Horizontal", 3),
    Sketcher.Constraint("DistanceX", 1, 1, 1, 2, Q("0.3 in")),
    Sketcher.Constraint("DistanceY", -1, 1, 0, 2, Q("1.13 in")),
    Sketcher.Constraint("DistanceX", -1, 1, 0, 2, Q("37.487898 mm")),
    Sketcher.Constraint("DistanceY", 0, 1, 0, 2, Q("3.707304 mm")),
])
sketch18.setExpression("Constraints[8]", "Params.sketch18_width")
pad10 = body.newObject("PartDesign::Pad", "Pad009")
pad10.Profile = sketch18
pad10.Type = "UpToFirst"
pad10.Reversed = True

sketch19 = body.newObject("Sketcher::SketchObject", "Sketch018")
sketch19.AttachmentSupport = (doc.getObject("YZ_Plane"), [""])
sketch19.MapMode = "FlatFace"
sketch19.AttachmentOffset = App.Placement(App.Vector(0, 0, -45.107898), App.Rotation())
add_polygon(sketch19, [(-28.6, 0), (-36.2, 0), (-36.2, 3.8), (-28.6, 3.8)])
sketch19.addConstraint([
    Sketcher.Constraint("Horizontal", 0),
    Sketcher.Constraint("Vertical", 1),
    Sketcher.Constraint("Horizontal", 2),
    Sketcher.Constraint("Vertical", 3),
    Sketcher.Constraint("PointOnObject", 0, 2, -1),
    Sketcher.Constraint("DistanceX", 0, 2, 0, 1, Q("0.3 in")),
    Sketcher.Constraint("DistanceY", 1, 1, 1, 2, Q("0.15 in")),
    Sketcher.Constraint("DistanceX", 0, 2, -1, 1, Q("36.227472 mm")),
])
sketch19.setExpression("Constraints[9]", "Params.sketch19_width")
sketch19.setExpression("Constraints[10]", "Params.sketch19_height")
pad11 = body.newObject("PartDesign::Pad", "Pad010")
pad11.Profile = sketch19
pad11.Type = "UpToFirst"
pad11.Reversed = True

sketch20 = body.newObject("Sketcher::SketchObject", "Sketch019")
sketch20.AttachmentSupport = (doc.getObject("YZ_Plane"), [""])
sketch20.MapMode = "FlatFace"
sketch20.AttachmentOffset = App.Placement(App.Vector(0, 0, -45.107898), App.Rotation())
add_polygon(sketch20, [(36.2, 0), (28.6, 0), (28.6, 3.8), (36.2, 3.8)])
sketch20.addConstraint([
    Sketcher.Constraint("Horizontal", 0),
    Sketcher.Constraint("Vertical", 1),
    Sketcher.Constraint("Horizontal", 2),
    Sketcher.Constraint("Vertical", 3),
    Sketcher.Constraint("PointOnObject", 0, 2, -1),
    Sketcher.Constraint("DistanceX", 0, 2, 0, 1, Q("0.3 in")),
    Sketcher.Constraint("DistanceY", 1, 1, 1, 2, Q("0.15 in")),
    Sketcher.Constraint("DistanceX", -1, 1, 0, 2, Q("28.607472 mm")),
])
sketch20.setExpression("Constraints[9]", "Params.sketch20_width")
sketch20.setExpression("Constraints[10]", "Params.sketch20_height")
pad12 = body.newObject("PartDesign::Pad", "Pad011")
pad12.Profile = sketch20
pad12.Type = "UpToFirst"
pad12.Reversed = True

sketch21 = body.newObject("Sketcher::SketchObject", "Sketch020")
sketch21.AttachmentSupport = (doc.getObject("YZ_Plane"), [""])
sketch21.MapMode = "FlatFace"
sketch21.AttachmentOffset = App.Placement(App.Vector(0, 0, 45.107898), App.Rotation())
add_polygon(sketch21, [(36.2, 3.8), (28.6, 3.8), (28.6, 0), (36.2, 0)])
sketch21.addConstraint([
    Sketcher.Constraint("Horizontal", 0),
    Sketcher.Constraint("Vertical", 1),
    Sketcher.Constraint("Horizontal", 2),
    Sketcher.Constraint("Vertical", 3),
    Sketcher.Constraint("PointOnObject", 1, 2, -1),
    Sketcher.Constraint("DistanceX", 0, 2, 0, 1, Q("0.3 in")),
    Sketcher.Constraint("DistanceY", 1, 2, 1, 1, Q("0.15 in")),
    Sketcher.Constraint("DistanceX", -1, 1, 0, 2, Q("28.607472 mm")),
])
sketch21.setExpression("Constraints[9]", "Params.sketch21_width")
sketch21.setExpression("Constraints[10]", "Params.sketch21_height")
pad13 = body.newObject("PartDesign::Pad", "Pad012")
pad13.Profile = sketch21
pad13.Type = "UpToFirst"

sketch22 = body.newObject("Sketcher::SketchObject", "Sketch021")
sketch22.AttachmentSupport = (doc.getObject("YZ_Plane"), [""])
sketch22.MapMode = "FlatFace"
sketch22.AttachmentOffset = App.Placement(App.Vector(0, 0, 45.107898), App.Rotation())
add_polygon(sketch22, [(-28.6, 3.8), (-36.2, 3.8), (-36.2, 0), (-28.6, 0)])
sketch22.addConstraint([
    Sketcher.Constraint("Horizontal", 0),
    Sketcher.Constraint("Vertical", 1),
    Sketcher.Constraint("Horizontal", 2),
    Sketcher.Constraint("Vertical", 3),
    Sketcher.Constraint("PointOnObject", 1, 2, -1),
    Sketcher.Constraint("DistanceX", 0, 2, 0, 1, Q("0.3 in")),
    Sketcher.Constraint("DistanceY", 1, 2, 1, 1, Q("0.15 in")),
    Sketcher.Constraint("DistanceX", 0, 2, -1, 1, Q("36.227472 mm")),
])
sketch22.setExpression("Constraints[9]", "Params.sketch22_width")
sketch22.setExpression("Constraints[10]", "Params.sketch22_height")
pad14 = body.newObject("PartDesign::Pad", "Pad013")
pad14.Profile = sketch22
pad14.Type = "UpToFirst"

sketch23 = body.newObject("Sketcher::SketchObject", "Sketch022")
sketch23.AttachmentSupport = (doc.getObject("XY_Plane"), [""])
sketch23.MapMode = "FlatFace"
sketch23.AttachmentOffset = App.Placement(App.Vector(0, 0, 1.13 * 25.4), App.Rotation())
sketch23.addGeometry([
    Part.Circle(App.Vector(-40.3, 26.6, 0), App.Vector(0, 0, 1), 1.7),
    Part.Circle(App.Vector(-40.3, -32.4, 0), App.Vector(0, 0, 1), 1.7),
    Part.Circle(App.Vector(42.7, 19.3, 0), App.Vector(0, 0, 1), 1.7),
    Part.Circle(App.Vector(42.7, -25.2, 0), App.Vector(0, 0, 1), 1.7),
], False)
sketch23.addConstraint([
    Sketcher.Constraint("Equal", 0, 1),
    Sketcher.Constraint("Equal", 1, 2),
    Sketcher.Constraint("Equal", 2, 3),
    Sketcher.Constraint("Vertical", 0, 3, 1, 3),
    Sketcher.Constraint("Vertical", 2, 3, 3, 3),
    Sketcher.Constraint("Diameter", 0, Q("0.134 in")),
    Sketcher.Constraint("DistanceY", 3, 3, -1, 1, Q("25.172251 mm")),
    Sketcher.Constraint("DistanceY", 1, 3, 2, 3, Q("51.721949 mm")),
    Sketcher.Constraint("DistanceY", 1, 3, 3, 3, Q("7.272911 mm")),
    Sketcher.Constraint("DistanceX", 0, 3, -1, 1, Q("40.349058 mm")),
    Sketcher.Constraint("DistanceY", -1, 1, 0, 3, Q("26.641763 mm")),
    Sketcher.Constraint("DistanceX", -1, 1, 2, 3, Q("42.691835 mm")),
])
sketch23.setExpression("Constraints[5]", "Params.sketch23_diameter")
pocket9 = body.newObject("PartDesign::Pocket", "Pocket008")
pocket9.Profile = sketch23
pocket9.setExpression("Length", "Params.pocket9_length")

sketch24 = body.newObject("Sketcher::SketchObject", "Sketch023")
sketch24.AttachmentSupport = (doc.getObject("XY_Plane"), [""])
sketch24.MapMode = "FlatFace"
sketch24.AttachmentOffset = App.Placement(App.Vector(0, 0, 1.13 * 25.4), App.Rotation())
add_polygon(sketch24, [(37.5, 30.3), (37.5, 23.4), (40.4, 23.4), (40.4, 30.3)])
sketch24.addConstraint([
    Sketcher.Constraint("Vertical", 0),
    Sketcher.Constraint("Horizontal", 1),
    Sketcher.Constraint("Vertical", 2),
    Sketcher.Constraint("Horizontal", 3),
    Sketcher.Constraint("DistanceX", 1, 1, 1, 2, Q("2.939441 mm")),
    Sketcher.Constraint("DistanceX", -1, 1, 0, 2, Q("37.487898 mm")),
    Sketcher.Constraint("DistanceY", -1, 1, 0, 2, Q("23.4292 mm")),
    Sketcher.Constraint("DistanceY", 0, 2, 0, 1, Q("6.893445 mm")),
])
pocket10 = body.newObject("PartDesign::Pocket", "Pocket009")
pocket10.Profile = sketch24
pocket10.setExpression("Length", "Params.pocket10_length")

doc.recompute()
